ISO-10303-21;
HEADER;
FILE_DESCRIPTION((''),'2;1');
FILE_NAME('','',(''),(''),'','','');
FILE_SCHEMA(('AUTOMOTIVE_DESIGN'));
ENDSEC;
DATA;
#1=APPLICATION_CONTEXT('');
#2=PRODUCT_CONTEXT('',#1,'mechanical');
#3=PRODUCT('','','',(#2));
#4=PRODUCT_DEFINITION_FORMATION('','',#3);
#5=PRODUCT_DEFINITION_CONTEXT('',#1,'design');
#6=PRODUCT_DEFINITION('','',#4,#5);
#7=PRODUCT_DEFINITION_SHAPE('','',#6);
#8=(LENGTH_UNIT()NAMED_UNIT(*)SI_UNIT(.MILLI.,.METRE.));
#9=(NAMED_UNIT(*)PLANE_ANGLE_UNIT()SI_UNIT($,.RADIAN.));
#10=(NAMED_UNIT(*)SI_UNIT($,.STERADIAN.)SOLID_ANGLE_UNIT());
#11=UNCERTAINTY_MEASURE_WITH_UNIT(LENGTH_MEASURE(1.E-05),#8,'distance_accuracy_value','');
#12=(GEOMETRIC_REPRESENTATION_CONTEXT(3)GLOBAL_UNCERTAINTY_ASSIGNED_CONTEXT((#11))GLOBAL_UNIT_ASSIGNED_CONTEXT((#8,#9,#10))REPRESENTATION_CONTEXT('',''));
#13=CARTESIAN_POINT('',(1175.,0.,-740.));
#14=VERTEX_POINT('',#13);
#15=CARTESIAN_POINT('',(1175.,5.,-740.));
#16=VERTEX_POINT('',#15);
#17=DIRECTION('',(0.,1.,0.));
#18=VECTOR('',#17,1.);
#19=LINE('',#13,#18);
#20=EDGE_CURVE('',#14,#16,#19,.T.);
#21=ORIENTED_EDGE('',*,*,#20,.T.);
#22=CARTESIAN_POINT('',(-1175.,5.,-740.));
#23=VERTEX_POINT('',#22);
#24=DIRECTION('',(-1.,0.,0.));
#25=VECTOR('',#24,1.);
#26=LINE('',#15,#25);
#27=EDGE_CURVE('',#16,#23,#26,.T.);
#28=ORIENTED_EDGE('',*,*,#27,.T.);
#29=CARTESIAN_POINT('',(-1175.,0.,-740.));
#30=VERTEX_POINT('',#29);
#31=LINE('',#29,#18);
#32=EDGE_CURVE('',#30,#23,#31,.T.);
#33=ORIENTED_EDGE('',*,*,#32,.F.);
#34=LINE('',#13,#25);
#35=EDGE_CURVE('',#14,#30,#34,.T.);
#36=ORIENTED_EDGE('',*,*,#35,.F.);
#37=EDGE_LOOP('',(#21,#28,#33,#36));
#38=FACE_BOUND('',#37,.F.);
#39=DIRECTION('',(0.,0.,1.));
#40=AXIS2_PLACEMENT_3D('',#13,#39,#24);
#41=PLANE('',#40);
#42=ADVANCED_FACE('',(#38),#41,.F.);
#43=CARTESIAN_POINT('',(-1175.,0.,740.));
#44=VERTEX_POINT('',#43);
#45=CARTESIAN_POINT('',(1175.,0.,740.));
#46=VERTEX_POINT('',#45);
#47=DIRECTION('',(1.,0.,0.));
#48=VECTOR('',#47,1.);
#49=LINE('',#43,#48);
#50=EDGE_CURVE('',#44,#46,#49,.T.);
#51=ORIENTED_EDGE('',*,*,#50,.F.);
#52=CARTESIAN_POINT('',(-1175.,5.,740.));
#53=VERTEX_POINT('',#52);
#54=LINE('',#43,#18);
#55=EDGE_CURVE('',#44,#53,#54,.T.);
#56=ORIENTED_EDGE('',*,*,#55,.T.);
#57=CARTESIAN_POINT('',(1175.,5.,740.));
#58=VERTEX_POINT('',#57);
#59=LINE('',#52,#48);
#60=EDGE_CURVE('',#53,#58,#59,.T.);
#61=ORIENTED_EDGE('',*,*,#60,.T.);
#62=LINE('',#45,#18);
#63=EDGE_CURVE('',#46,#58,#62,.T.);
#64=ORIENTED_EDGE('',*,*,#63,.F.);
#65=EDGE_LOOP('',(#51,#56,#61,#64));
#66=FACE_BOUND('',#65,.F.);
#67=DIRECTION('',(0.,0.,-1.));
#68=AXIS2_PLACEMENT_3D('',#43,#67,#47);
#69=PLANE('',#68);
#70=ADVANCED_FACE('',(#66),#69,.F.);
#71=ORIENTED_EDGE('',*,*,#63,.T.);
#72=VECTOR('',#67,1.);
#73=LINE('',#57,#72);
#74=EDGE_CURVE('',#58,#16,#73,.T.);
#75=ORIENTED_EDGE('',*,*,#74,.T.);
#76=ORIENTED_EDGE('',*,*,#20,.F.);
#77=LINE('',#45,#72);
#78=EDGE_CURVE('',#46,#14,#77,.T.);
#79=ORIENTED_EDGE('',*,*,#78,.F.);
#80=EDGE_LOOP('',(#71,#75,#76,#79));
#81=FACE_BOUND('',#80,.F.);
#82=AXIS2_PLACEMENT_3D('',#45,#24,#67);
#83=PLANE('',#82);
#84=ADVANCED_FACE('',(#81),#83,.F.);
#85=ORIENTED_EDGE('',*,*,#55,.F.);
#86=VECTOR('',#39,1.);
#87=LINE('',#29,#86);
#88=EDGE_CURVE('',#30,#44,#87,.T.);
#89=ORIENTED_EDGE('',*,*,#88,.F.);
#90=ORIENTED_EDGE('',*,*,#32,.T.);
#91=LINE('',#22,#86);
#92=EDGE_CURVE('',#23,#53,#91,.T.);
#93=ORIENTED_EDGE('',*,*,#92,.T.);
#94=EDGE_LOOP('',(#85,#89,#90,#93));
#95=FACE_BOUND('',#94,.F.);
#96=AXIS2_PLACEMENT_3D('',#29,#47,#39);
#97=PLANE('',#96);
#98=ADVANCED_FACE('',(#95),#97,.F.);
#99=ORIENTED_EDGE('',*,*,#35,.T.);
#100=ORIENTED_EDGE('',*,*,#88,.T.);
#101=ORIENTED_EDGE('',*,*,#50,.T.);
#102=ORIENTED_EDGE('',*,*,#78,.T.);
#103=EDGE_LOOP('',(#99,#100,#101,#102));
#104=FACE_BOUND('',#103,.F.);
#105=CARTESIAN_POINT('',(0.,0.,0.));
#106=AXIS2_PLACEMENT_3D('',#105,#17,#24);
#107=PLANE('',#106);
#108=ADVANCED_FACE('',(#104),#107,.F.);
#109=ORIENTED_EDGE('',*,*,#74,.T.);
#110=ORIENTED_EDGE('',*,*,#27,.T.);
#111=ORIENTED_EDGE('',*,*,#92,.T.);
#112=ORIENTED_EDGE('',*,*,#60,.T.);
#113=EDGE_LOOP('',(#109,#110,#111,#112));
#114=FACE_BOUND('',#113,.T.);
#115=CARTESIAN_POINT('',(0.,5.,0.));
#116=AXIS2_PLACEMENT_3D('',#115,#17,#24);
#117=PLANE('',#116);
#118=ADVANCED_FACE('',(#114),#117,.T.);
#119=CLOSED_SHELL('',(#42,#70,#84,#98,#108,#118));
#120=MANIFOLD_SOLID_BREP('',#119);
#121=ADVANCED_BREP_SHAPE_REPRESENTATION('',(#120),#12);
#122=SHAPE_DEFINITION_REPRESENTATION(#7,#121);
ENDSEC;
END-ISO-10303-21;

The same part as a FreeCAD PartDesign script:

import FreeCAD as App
import Part
import Sketcher

V = App.Vector


def add_polygon(sketch, points):
    """Adds a closed chain of lines whose ends are joined by coincident constraints."""
    first, n = sketch.GeometryCount, len(points)
    for a, b in zip(points, points[1:] + points[:1]):
        sketch.addGeometry(Part.LineSegment(App.Vector(*a, 0), App.Vector(*b, 0)), False)
    for i in range(n):
        sketch.addConstraint(Sketcher.Constraint("Coincident", first + i, 2, first + (i + 1) % n, 1))

doc = App.newDocument("Part")
body = doc.addObject("PartDesign::Body", "Body")

# Sketch on XZ plane
sketch1 = body.newObject("Sketcher::SketchObject", "Sketch")
sketch1.AttachmentSupport = (doc.getObject("XZ_Plane"), [""])
sketch1.MapMode = "FlatFace"
add_polygon(sketch1, [(-1175, -740), (-1175, 740), (1175, 740), (1175, -740)])  # lines 0-3
sketch1.addConstraint([
    Sketcher.Constraint("Vertical", 0),
    Sketcher.Constraint("Horizontal", 1),
    Sketcher.Constraint("Vertical", 2),
    Sketcher.Constraint("Horizontal", 3),
    Sketcher.Constraint("Symmetric", 0, 2, 2, 2, -1, 1),
    Sketcher.Constraint("DistanceX", 1, 1, 1, 2, 2350.0),
    Sketcher.Constraint("DistanceY", 0, 1, 0, 2, 1480.0),
])
pad1 = body.newObject("PartDesign::Pad", "Pad")
pad1.Profile = sketch1
pad1.Length = 5
pad1.Reversed = True

doc.recompute()
